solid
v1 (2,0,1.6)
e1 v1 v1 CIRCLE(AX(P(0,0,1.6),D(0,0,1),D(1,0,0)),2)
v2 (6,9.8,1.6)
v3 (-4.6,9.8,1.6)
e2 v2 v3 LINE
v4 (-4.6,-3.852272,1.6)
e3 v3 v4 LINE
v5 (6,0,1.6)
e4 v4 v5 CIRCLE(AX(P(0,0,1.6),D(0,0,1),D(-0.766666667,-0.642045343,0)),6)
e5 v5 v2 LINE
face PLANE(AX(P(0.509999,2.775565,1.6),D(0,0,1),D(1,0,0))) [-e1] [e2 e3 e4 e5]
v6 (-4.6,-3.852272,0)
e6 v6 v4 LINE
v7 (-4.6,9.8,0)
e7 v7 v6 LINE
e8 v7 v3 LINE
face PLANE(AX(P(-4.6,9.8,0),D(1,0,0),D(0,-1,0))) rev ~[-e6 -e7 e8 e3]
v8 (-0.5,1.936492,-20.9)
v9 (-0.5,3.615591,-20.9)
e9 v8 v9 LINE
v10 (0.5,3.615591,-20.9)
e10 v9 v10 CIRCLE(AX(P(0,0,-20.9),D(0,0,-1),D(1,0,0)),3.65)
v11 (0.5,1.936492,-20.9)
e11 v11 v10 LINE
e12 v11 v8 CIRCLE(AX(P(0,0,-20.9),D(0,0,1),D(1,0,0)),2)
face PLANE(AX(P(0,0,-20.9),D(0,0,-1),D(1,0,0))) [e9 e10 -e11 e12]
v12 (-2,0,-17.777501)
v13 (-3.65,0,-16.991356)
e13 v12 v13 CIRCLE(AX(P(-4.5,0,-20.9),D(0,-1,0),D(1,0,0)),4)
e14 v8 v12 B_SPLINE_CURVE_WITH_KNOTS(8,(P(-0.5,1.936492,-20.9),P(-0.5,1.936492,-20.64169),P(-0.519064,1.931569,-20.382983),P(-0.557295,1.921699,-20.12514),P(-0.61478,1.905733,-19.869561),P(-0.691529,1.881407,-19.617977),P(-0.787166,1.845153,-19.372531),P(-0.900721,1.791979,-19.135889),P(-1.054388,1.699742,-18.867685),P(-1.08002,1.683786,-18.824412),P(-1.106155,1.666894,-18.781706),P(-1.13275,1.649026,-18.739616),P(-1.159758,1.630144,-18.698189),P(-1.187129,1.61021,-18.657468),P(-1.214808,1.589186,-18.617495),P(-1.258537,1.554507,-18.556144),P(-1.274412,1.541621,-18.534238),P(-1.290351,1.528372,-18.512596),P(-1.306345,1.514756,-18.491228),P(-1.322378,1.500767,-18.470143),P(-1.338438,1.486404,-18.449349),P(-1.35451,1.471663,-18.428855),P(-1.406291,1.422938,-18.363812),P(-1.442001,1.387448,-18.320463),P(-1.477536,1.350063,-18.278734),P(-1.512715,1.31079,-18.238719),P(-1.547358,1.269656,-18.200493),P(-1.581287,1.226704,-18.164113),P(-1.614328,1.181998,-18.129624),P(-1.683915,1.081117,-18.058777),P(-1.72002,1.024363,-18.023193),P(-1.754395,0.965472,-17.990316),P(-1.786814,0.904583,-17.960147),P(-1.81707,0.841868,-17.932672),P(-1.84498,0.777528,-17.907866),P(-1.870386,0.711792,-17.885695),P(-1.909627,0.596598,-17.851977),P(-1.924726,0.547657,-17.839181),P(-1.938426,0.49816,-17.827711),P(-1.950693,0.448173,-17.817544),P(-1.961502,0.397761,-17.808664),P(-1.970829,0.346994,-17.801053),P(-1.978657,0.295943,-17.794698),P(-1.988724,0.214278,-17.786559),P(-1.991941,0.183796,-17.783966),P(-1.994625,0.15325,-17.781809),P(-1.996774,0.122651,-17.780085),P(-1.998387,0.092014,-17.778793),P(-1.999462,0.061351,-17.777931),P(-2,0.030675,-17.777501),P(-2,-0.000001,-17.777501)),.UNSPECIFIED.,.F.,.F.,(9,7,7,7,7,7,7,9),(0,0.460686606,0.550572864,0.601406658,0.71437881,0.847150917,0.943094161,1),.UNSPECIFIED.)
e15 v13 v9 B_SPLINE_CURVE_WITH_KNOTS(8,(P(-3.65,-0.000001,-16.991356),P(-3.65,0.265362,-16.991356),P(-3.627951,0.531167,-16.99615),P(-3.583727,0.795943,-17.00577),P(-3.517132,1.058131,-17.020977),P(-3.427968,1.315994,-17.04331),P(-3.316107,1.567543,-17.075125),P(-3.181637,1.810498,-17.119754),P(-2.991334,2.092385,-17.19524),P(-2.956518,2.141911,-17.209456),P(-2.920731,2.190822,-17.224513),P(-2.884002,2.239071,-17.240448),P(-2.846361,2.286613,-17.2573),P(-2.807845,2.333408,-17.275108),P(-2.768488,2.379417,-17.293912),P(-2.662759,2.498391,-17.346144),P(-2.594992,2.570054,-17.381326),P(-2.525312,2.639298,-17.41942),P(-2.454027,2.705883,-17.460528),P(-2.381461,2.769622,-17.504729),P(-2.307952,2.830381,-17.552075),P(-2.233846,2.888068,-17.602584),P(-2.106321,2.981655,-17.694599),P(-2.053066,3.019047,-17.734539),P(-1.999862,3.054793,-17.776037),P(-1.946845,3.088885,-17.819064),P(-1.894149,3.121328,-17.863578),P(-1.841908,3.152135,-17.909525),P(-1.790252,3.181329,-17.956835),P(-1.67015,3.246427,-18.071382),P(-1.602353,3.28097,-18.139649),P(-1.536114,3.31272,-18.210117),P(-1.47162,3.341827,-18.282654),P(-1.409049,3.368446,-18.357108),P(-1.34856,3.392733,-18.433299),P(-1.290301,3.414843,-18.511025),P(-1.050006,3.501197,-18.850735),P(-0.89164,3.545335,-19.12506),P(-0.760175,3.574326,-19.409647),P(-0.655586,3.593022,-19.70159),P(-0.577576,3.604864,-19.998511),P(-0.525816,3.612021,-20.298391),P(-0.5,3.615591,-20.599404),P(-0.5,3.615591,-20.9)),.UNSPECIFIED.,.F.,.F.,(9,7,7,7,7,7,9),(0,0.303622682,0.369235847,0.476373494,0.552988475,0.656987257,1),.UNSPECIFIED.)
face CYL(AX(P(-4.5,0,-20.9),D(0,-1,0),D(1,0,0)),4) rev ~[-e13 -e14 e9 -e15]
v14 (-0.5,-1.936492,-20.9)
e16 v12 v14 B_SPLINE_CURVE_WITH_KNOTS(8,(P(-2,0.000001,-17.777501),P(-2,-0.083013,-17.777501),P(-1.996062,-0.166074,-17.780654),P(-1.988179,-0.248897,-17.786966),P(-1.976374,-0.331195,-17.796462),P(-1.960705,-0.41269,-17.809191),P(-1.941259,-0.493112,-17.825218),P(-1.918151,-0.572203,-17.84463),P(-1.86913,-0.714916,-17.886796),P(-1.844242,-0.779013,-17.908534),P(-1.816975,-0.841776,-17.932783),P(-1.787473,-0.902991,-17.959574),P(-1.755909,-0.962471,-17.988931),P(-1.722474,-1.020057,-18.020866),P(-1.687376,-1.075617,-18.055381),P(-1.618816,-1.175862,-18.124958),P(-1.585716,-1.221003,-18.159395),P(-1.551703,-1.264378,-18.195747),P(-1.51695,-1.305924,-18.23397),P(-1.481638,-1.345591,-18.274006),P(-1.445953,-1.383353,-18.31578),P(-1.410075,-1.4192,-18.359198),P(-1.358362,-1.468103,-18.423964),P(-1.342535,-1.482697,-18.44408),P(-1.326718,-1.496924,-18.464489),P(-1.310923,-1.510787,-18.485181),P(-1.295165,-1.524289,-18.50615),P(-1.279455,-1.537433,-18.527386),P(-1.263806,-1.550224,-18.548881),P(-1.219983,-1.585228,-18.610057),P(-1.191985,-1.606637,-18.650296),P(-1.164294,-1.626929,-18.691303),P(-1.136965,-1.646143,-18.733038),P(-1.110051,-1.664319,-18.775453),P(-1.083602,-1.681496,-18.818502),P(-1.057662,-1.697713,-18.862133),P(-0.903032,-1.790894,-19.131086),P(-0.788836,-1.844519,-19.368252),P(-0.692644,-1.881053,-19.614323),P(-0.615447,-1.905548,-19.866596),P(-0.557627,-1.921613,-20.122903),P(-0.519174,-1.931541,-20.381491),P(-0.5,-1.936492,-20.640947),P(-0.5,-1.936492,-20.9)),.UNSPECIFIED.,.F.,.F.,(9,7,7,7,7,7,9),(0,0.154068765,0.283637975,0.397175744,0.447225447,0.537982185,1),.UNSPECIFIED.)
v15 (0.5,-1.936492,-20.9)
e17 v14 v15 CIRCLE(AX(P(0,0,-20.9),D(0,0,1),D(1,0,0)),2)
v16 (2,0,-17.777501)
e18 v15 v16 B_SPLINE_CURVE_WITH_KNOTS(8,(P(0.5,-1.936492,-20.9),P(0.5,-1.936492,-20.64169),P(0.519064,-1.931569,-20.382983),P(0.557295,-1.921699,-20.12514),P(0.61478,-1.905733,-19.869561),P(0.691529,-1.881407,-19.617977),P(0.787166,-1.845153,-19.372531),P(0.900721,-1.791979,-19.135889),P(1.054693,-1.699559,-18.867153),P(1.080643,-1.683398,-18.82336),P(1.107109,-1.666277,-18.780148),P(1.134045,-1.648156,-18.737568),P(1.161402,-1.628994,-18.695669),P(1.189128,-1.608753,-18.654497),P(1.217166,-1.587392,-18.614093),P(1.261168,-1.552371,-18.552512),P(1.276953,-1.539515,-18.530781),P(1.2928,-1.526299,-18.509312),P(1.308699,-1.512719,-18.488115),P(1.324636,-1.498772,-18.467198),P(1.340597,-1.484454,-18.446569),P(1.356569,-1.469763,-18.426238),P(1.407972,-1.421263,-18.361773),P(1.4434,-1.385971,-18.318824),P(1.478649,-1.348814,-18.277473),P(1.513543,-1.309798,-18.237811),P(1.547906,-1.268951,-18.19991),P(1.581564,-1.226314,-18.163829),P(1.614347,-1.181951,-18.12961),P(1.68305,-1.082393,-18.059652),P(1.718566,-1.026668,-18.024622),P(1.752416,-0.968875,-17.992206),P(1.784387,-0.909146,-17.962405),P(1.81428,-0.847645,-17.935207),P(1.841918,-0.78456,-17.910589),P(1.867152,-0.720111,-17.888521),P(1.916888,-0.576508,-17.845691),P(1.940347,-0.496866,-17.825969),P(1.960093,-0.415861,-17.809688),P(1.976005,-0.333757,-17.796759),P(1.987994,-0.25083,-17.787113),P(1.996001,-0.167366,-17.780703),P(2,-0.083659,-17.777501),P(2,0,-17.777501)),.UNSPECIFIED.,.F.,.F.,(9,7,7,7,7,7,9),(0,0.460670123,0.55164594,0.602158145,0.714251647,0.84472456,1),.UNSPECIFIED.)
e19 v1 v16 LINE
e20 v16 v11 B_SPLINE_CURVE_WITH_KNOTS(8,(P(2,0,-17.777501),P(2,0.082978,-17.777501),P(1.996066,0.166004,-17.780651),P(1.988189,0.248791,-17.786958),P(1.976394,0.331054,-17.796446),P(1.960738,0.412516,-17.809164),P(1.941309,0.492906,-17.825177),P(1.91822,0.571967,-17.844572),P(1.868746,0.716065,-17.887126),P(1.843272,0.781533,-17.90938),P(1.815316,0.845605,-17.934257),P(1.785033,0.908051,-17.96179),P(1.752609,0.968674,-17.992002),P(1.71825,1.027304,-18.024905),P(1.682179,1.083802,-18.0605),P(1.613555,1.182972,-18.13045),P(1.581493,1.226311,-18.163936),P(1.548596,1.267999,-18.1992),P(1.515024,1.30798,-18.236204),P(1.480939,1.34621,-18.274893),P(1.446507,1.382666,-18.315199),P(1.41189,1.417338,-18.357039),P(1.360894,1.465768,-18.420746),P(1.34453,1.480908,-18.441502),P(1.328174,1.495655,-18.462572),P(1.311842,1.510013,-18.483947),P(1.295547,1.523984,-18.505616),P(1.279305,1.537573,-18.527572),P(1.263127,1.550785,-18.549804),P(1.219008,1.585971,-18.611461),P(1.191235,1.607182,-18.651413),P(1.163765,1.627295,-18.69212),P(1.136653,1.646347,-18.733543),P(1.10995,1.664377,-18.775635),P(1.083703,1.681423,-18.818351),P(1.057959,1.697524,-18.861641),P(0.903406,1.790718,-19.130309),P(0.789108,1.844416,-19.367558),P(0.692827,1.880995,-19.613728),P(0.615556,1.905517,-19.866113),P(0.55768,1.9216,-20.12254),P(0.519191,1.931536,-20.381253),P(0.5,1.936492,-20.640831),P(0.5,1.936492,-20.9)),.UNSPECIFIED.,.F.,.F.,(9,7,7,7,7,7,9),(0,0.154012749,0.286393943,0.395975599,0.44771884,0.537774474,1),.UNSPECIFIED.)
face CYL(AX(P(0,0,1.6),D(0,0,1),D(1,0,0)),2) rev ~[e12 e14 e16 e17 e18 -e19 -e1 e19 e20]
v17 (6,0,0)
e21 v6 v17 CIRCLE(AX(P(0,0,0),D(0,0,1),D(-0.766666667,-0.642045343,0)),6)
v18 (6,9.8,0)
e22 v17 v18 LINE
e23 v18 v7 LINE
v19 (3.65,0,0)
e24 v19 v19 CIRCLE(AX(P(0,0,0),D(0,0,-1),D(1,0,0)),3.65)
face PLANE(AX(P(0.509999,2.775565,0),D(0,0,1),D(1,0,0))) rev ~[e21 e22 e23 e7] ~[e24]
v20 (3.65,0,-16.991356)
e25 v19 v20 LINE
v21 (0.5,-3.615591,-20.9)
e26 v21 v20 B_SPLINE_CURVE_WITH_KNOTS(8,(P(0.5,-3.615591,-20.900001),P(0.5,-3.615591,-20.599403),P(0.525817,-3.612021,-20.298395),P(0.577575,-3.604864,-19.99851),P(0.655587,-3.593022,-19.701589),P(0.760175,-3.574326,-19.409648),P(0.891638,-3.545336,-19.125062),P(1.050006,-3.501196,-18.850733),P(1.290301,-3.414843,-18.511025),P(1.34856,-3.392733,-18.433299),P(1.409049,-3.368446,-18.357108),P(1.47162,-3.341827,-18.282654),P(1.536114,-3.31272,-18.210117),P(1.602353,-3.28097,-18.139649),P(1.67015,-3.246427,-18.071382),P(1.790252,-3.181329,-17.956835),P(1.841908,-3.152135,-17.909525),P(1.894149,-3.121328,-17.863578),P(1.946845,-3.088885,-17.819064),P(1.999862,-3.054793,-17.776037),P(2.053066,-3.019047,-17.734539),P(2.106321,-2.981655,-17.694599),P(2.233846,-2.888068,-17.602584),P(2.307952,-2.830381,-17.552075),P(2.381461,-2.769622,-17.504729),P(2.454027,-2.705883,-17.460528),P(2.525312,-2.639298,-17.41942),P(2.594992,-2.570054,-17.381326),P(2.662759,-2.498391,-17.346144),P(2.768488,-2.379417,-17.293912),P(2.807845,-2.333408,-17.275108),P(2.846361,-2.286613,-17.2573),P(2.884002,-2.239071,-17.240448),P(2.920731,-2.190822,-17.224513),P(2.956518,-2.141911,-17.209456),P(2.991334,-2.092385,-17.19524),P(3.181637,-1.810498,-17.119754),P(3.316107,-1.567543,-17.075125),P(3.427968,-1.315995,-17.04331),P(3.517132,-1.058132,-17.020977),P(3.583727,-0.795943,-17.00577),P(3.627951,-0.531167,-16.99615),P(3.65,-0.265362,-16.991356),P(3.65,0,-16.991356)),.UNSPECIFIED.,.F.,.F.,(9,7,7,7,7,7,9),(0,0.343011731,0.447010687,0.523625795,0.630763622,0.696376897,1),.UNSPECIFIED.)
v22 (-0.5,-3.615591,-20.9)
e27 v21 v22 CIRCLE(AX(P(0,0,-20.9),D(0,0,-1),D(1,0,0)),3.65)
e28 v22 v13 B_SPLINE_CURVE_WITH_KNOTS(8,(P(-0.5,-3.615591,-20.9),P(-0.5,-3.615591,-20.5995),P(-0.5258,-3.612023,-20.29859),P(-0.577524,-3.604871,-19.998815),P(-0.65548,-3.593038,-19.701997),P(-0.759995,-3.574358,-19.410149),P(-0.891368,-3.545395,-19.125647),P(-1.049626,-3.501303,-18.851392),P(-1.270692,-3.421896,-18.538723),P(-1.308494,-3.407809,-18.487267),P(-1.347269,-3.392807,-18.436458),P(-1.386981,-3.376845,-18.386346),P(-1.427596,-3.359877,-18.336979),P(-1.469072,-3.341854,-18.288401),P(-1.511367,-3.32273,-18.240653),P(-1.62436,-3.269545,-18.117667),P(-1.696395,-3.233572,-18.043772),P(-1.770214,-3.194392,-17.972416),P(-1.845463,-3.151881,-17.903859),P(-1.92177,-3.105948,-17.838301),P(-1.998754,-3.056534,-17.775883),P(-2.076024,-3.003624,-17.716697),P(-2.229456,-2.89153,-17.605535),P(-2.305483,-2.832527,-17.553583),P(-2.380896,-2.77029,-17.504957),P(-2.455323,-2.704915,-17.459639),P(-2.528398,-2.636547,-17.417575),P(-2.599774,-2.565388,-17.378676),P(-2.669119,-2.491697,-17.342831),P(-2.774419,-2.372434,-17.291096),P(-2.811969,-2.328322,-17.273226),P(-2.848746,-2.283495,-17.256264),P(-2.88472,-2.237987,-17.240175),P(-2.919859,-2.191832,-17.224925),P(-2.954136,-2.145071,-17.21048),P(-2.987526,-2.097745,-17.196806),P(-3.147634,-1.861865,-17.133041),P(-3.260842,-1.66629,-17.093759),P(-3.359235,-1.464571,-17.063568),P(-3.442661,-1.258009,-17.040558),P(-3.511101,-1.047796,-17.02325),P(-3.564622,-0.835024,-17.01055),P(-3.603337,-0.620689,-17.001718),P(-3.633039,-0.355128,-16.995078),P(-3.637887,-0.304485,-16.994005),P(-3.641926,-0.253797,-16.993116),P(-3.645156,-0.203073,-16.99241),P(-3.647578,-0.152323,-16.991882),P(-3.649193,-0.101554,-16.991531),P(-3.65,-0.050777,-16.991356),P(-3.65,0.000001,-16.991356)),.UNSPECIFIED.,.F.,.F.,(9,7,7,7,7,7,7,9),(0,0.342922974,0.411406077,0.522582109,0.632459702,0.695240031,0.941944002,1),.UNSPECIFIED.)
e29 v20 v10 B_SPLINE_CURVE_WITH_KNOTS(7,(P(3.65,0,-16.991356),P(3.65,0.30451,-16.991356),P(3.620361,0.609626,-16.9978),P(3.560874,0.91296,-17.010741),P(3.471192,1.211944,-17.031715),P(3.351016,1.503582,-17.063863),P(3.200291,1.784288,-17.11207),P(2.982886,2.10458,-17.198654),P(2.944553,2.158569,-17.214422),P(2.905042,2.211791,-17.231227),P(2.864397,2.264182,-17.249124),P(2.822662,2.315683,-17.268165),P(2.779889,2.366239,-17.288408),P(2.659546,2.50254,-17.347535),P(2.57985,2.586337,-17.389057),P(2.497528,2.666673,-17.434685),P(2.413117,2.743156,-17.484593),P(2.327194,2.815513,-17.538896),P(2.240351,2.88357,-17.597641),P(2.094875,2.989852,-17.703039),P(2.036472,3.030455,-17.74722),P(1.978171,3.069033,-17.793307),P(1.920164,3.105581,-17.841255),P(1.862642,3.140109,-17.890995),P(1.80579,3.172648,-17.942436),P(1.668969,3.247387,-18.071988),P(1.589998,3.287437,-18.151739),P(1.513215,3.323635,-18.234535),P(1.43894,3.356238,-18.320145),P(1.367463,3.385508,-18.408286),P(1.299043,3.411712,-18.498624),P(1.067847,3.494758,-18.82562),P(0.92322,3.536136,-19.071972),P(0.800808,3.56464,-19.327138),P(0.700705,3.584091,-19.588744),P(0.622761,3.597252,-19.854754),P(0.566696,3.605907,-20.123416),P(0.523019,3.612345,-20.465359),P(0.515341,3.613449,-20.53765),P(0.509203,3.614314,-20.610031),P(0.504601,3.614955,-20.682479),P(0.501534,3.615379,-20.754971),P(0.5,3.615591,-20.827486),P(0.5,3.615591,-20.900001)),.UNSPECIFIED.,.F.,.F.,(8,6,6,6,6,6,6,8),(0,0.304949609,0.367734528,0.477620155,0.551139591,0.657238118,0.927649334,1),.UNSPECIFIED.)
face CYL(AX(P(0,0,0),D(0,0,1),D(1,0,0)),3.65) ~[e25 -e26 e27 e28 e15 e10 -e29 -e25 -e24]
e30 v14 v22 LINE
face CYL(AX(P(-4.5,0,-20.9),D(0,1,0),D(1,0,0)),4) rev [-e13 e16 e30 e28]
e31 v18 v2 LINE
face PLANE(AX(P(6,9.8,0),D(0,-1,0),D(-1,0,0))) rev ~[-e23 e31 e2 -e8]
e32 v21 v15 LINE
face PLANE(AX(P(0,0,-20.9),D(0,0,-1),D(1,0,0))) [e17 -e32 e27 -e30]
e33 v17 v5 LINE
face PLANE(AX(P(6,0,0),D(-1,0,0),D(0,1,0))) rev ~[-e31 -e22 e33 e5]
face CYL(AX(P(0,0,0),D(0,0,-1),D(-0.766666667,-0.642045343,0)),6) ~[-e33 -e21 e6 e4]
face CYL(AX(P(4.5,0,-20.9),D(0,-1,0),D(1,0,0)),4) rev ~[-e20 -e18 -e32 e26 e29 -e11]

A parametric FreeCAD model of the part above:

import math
import FreeCAD as App
import Part
import Sketcher

V = App.Vector
Q = App.Units.Quantity

doc = App.newDocument("Part")
body = doc.addObject("PartDesign::Body", "Body")

sketch1 = body.newObject("Sketcher::SketchObject", "Sketch")
sketch1.AttachmentSupport = (doc.getObject("XY_Plane"), [""])
sketch1.MapMode = "FlatFace"
sketch1.addGeometry([
    Part.LineSegment(V(-4.6, 9.8, 0), V(-4.6, -3.852272, 0)),
    Part.ArcOfCircle(Part.Circle(V(0, 0, 0), V(0, 0, 1), 6), math.radians(-140.055495), math.radians(0)),
    Part.LineSegment(V(6, 0, 0), V(6, 9.8, 0)),
    Part.LineSegment(V(6, 9.8, 0), V(-4.6, 9.8, 0)),
], False)
sketch1.addConstraint([
    Sketcher.Constraint("Coincident", 0, 2, 1, 1),
    Sketcher.Constraint("Tangent", 1, 2, 2, 1),
    Sketcher.Constraint("Coincident", 2, 2, 3, 1),
    Sketcher.Constraint("Coincident", 3, 2, 0, 1),
    Sketcher.Constraint("Vertical", 0),
    Sketcher.Constraint("Vertical", 2),
    Sketcher.Constraint("Horizontal", 3),
    Sketcher.Constraint("Coincident", 1, 3, -1, 1),
    Sketcher.Constraint("Radius", 1, Q("6 mm")),
    Sketcher.Constraint("DistanceX", 3, 2, 3, 1, Q("10.6 mm")),
    Sketcher.Constraint("DistanceY", 2, 1, 2, 2, Q("9.8 mm")),
])
pad1 = body.newObject("PartDesign::Pad", "Pad")
pad1.Profile = sketch1
pad1.Length = 1.6

sketch2 = body.newObject("Sketcher::SketchObject", "Sketch001")
sketch2.AttachmentSupport = (doc.getObject("XY_Plane"), [""])
sketch2.MapMode = "FlatFace"
sketch2.addGeometry(Part.Circle(V(0, 0, 0), V(0, 0, 1), 3.65), False)
sketch2.addConstraint([
    Sketcher.Constraint("Coincident", 0, 3, -1, 1),
    Sketcher.Constraint("Diameter", 0, Q("7.3 mm")),
])
pad2 = body.newObject("PartDesign::Pad", "Pad001")
pad2.Profile = sketch2
pad2.Length = 20.9
pad2.Reversed = True

sketch3 = body.newObject("Sketcher::SketchObject", "Sketch002")
sketch3.AttachmentSupport = (doc.getObject("XZ_Plane"), [""])
sketch3.MapMode = "FlatFace"
sketch3.addGeometry([
    Part.Circle(V(4.5, -20.9, 0), V(0, 0, 1), 4),
    Part.Circle(V(-4.5, -20.9, 0), V(0, 0, 1), 4),
], False)
sketch3.addConstraint([
    Sketcher.Constraint("Equal", 0, 1),
    Sketcher.Constraint("Symmetric", 0, 3, 1, 3, -2),
    Sketcher.Constraint("Diameter", 0, Q("8 mm")),
    Sketcher.Constraint("DistanceX", 1, 3, 0, 3, Q("9 mm")),
    Sketcher.Constraint("DistanceY", 0, 3, -1, 1, Q("20.9 mm")),
])
pocket1 = body.newObject("PartDesign::Pocket", "Pocket")
pocket1.Profile = sketch3
pocket1.Type = "ThroughAll"
pocket1.Midplane = True

sketch4 = body.newObject("Sketcher::SketchObject", "Sketch003")
sketch4.AttachmentSupport = (doc.getObject("XY_Plane"), [""])
sketch4.MapMode = "FlatFace"
sketch4.AttachmentOffset = App.Placement(V(0, 0, 1.6), App.Rotation())
sketch4.addGeometry(Part.Circle(V(0, 0, 0), V(0, 0, 1), 2), False)
sketch4.addConstraint([
    Sketcher.Constraint("Coincident", 0, 3, -1, 1),
    Sketcher.Constraint("Diameter", 0, Q("4 mm")),
])
pocket2 = body.newObject("PartDesign::Pocket", "Pocket001")
pocket2.Profile = sketch4
pocket2.Type = "ThroughAll"

doc.recompute()
